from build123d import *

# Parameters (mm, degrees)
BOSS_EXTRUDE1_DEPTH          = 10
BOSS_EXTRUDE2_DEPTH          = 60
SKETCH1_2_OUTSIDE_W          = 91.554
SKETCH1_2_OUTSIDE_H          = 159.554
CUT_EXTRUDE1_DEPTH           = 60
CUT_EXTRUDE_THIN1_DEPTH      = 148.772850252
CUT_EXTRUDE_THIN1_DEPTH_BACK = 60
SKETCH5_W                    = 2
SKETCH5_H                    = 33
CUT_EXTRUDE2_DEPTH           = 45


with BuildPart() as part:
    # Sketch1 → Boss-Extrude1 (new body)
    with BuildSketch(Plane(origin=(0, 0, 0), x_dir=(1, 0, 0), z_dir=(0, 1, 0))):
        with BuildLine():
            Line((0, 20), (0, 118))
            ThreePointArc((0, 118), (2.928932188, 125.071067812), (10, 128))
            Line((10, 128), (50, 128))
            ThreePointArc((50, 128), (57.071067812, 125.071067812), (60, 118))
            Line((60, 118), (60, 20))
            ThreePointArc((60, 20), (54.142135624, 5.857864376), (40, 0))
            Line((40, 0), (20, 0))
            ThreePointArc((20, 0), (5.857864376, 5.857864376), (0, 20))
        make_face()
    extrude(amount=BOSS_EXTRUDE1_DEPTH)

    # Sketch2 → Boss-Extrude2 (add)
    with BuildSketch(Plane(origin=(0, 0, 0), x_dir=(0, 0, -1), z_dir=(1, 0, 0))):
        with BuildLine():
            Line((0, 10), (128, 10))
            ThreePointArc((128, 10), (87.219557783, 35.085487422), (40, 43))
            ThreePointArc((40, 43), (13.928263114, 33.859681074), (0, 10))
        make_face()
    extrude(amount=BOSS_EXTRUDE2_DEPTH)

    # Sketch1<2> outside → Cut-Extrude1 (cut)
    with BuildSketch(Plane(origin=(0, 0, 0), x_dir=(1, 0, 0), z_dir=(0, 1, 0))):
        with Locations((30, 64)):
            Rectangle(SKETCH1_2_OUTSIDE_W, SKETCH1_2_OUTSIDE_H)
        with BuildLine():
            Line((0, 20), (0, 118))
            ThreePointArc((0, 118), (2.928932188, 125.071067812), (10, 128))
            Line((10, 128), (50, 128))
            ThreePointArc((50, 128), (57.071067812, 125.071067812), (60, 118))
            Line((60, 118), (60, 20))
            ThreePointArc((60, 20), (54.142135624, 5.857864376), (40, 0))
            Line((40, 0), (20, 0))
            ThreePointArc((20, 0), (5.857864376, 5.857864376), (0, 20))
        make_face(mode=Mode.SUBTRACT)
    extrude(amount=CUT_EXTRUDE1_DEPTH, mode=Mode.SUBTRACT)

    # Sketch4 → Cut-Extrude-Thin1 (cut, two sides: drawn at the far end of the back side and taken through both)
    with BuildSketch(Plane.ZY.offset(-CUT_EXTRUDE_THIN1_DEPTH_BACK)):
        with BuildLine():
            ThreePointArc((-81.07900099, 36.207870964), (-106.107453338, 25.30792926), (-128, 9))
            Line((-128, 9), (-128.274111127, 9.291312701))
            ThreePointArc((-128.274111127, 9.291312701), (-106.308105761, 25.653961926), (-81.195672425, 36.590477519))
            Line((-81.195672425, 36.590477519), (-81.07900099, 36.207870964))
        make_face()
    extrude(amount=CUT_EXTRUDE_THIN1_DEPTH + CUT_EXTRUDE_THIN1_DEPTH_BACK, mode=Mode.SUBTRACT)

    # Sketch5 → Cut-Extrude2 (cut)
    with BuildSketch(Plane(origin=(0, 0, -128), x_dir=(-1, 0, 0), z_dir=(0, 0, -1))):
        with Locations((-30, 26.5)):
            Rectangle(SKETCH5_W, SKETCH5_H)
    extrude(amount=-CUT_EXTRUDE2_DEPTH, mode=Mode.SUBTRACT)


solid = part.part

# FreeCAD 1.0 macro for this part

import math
import FreeCAD as App
import Part
import Sketcher
from FreeCAD import Vector
Q = App.Units.Quantity

doc = App.newDocument("Part")
body = doc.addObject("PartDesign::Body", "Body")

sketch1 = body.newObject("Sketcher::SketchObject", "Sketch")
sketch1.AttachmentSupport = (doc.getObject("XZ_Plane"), [""])
sketch1.MapMode = "FlatFace"
sketch1.addGeometry(Part.LineSegment(Vector(0, -118, 0), Vector(0, -20, 0)), False)
sketch1.addGeometry(Part.ArcOfCircle(Part.Circle(Vector(20, -20, 0), Vector(0, 0, 1), 20), math.radians(90), math.radians(180)), False)
sketch1.addGeometry(Part.LineSegment(Vector(20, 0, 0), Vector(40, 0, 0)), False)
sketch1.addGeometry(Part.ArcOfCircle(Part.Circle(Vector(40, -20, 0), Vector(0, 0, 1), 20), math.radians(0), math.radians(90)), False)
sketch1.addGeometry(Part.LineSegment(Vector(60, -20, 0), Vector(60, -118, 0)), False)
sketch1.addGeometry(Part.ArcOfCircle(Part.Circle(Vector(50, -118, 0), Vector(0, 0, 1), 10), math.radians(-90), math.radians(0)), False)
sketch1.addGeometry(Part.LineSegment(Vector(50, -128, 0), Vector(10, -128, 0)), False)
sketch1.addGeometry(Part.ArcOfCircle(Part.Circle(Vector(10, -118, 0), Vector(0, 0, 1), 10), math.radians(180), math.radians(270)), False)
sketch1.addConstraint(Sketcher.Constraint("Tangent", 0, 2, 1, 2))
sketch1.addConstraint(Sketcher.Constraint("Tangent", 1, 1, 2, 1))
sketch1.addConstraint(Sketcher.Constraint("Tangent", 2, 2, 3, 2))
sketch1.addConstraint(Sketcher.Constraint("Tangent", 3, 1, 4, 1))
sketch1.addConstraint(Sketcher.Constraint("Tangent", 4, 2, 5, 2))
sketch1.addConstraint(Sketcher.Constraint("Tangent", 5, 1, 6, 1))
sketch1.addConstraint(Sketcher.Constraint("Tangent", 6, 2, 7, 2))
sketch1.addConstraint(Sketcher.Constraint("Tangent", 7, 1, 0, 1))
sketch1.addConstraint(Sketcher.Constraint("Vertical", 0))
sketch1.addConstraint(Sketcher.Constraint("Horizontal", 2))
sketch1.addConstraint(Sketcher.Constraint("Vertical", 4))
sketch1.addConstraint(Sketcher.Constraint("Horizontal", 6))
sketch1.addConstraint(Sketcher.Constraint("Equal", 1, 3))
sketch1.addConstraint(Sketcher.Constraint("Equal", 5, 7))
sketch1.addConstraint(Sketcher.Constraint("PointOnObject", 0, 2, -2))
sketch1.addConstraint(Sketcher.Constraint("PointOnObject", 1, 1, -1))
sketch1.addConstraint(Sketcher.Constraint("Radius", 1, Q("20 mm")))
sketch1.addConstraint(Sketcher.Constraint("Radius", 5, Q("10 mm")))
sketch1.addConstraint(Sketcher.Constraint("DistanceX", 2, 1, 2, 2, Q("20 mm")))
sketch1.addConstraint(Sketcher.Constraint("DistanceY", 0, 1, 0, 2, Q("98 mm")))
pad1 = body.newObject("PartDesign::Pad", "Pad")
pad1.Profile = sketch1
pad1.Length = 10
pad1.Reversed = True

sketch2 = body.newObject("Sketcher::SketchObject", "Sketch001")
sketch2.AttachmentSupport = (doc.getObject("YZ_Plane"), [""])
sketch2.MapMode = "FlatFace"
sketch2.addGeometry(Part.LineSegment(Vector(10, 0, 0), Vector(10, -128, 0)), False)
sketch2.addGeometry(Part.ArcOfCircle(Part.Circle(Vector(-82, -43, 0), Vector(0, 0, 1), 125), math.radians(-43), math.radians(2)), False)
sketch2.addGeometry(Part.ArcOfCircle(Part.Circle(Vector(3, -39, 0), Vector(0, 0, 1), 40), math.radians(-1), math.radians(80)), False)
sketch2.addConstraint(Sketcher.Constraint("Coincident", 0, 2, 1, 1))
sketch2.addConstraint(Sketcher.Constraint("Coincident", 1, 2, 2, 1))
sketch2.addConstraint(Sketcher.Constraint("Coincident", 2, 2, 0, 1))
sketch2.addConstraint(Sketcher.Constraint("Vertical", 0))
sketch2.addConstraint(Sketcher.Constraint("PointOnObject", 2, 2, -1))
sketch2.addConstraint(Sketcher.Constraint("Radius", 1, Q("125 mm")))
sketch2.addConstraint(Sketcher.Constraint("Radius", 2, Q("40 mm")))
sketch2.addConstraint(Sketcher.Constraint("DistanceY", 0, 2, 0, 1, Q("128 mm")))
sketch2.addConstraint(Sketcher.Constraint("DistanceX", -1, 1, 0, 2, Q("10 mm")))
sketch2.addConstraint(Sketcher.Constraint("DistanceX", -1, 1, 1, 2, Q("43 mm")))
sketch2.addConstraint(Sketcher.Constraint("DistanceY", 1, 2, -1, 1, Q("40 mm")))
pad2 = body.newObject("PartDesign::Pad", "Pad001")
pad2.Profile = sketch2
pad2.Length = 60

sketch3 = body.newObject("Sketcher::SketchObject", "Sketch002")
sketch3.AttachmentSupport = (doc.getObject("XZ_Plane"), [""])
sketch3.MapMode = "FlatFace"
sketch3.addGeometry(Part.LineSegment(Vector(-16, -144, 0), Vector(-16, 16, 0)), False)
sketch3.addGeometry(Part.LineSegment(Vector(-16, 16, 0), Vector(76, 16, 0)), False)
sketch3.addGeometry(Part.LineSegment(Vector(76, 16, 0), Vector(76, -144, 0)), False)
sketch3.addGeometry(Part.LineSegment(Vector(76, -144, 0), Vector(-16, -144, 0)), False)
sketch3.addGeometry(Part.ArcOfCircle(Part.Circle(Vector(20, -20, 0), Vector(0, 0, 1), 20), math.radians(90), math.radians(180)), False)
sketch3.addGeometry(Part.LineSegment(Vector(0, -20, 0), Vector(0, -118, 0)), False)
sketch3.addGeometry(Part.ArcOfCircle(Part.Circle(Vector(10, -118, 0), Vector(0, 0, 1), 10), math.radians(180), math.radians(270)), False)
sketch3.addGeometry(Part.LineSegment(Vector(10, -128, 0), Vector(50, -128, 0)), False)
sketch3.addGeometry(Part.ArcOfCircle(Part.Circle(Vector(50, -118, 0), Vector(0, 0, 1), 10), math.radians(-90), math.radians(0)), False)
sketch3.addGeometry(Part.LineSegment(Vector(60, -118, 0), Vector(60, -20, 0)), False)
sketch3.addGeometry(Part.ArcOfCircle(Part.Circle(Vector(40, -20, 0), Vector(0, 0, 1), 20), math.radians(0), math.radians(90)), False)
sketch3.addGeometry(Part.LineSegment(Vector(40, 0, 0), Vector(20, 0, 0)), False)
sketch3.addConstraint(Sketcher.Constraint("Coincident", 0, 2, 1, 1))
sketch3.addConstraint(Sketcher.Constraint("Coincident", 1, 2, 2, 1))
sketch3.addConstraint(Sketcher.Constraint("Coincident", 2, 2, 3, 1))
sketch3.addConstraint(Sketcher.Constraint("Coincident", 3, 2, 0, 1))
sketch3.addConstraint(Sketcher.Constraint("Tangent", 4, 2, 5, 1))
sketch3.addConstraint(Sketcher.Constraint("Tangent", 5, 2, 6, 1))
sketch3.addConstraint(Sketcher.Constraint("Tangent", 6, 2, 7, 1))
sketch3.addConstraint(Sketcher.Constraint("Tangent", 7, 2, 8, 1))
sketch3.addConstraint(Sketcher.Constraint("Tangent", 8, 2, 9, 1))
sketch3.addConstraint(Sketcher.Constraint("Tangent", 9, 2, 10, 1))
sketch3.addConstraint(Sketcher.Constraint("Tangent", 10, 2, 11, 1))
sketch3.addConstraint(Sketcher.Constraint("Tangent", 11, 2, 4, 1))
sketch3.addConstraint(Sketcher.Constraint("Vertical", 0))
sketch3.addConstraint(Sketcher.Constraint("Horizontal", 1))
sketch3.addConstraint(Sketcher.Constraint("Vertical", 2))
sketch3.addConstraint(Sketcher.Constraint("Horizontal", 3))
sketch3.addConstraint(Sketcher.Constraint("Vertical", 5))
sketch3.addConstraint(Sketcher.Constraint("Horizontal", 7))
sketch3.addConstraint(Sketcher.Constraint("Vertical", 9))
sketch3.addConstraint(Sketcher.Constraint("Horizontal", 11))
sketch3.addConstraint(Sketcher.Constraint("Equal", 6, 8))
sketch3.addConstraint(Sketcher.Constraint("Equal", 4, 10))
sketch3.addConstraint(Sketcher.Constraint("PointOnObject", 4, 2, -2))
sketch3.addConstraint(Sketcher.Constraint("PointOnObject", 10, 2, -1))
sketch3.addConstraint(Sketcher.Constraint("Radius", 4, Q("20 mm")))
sketch3.addConstraint(Sketcher.Constraint("Radius", 6, Q("10 mm")))
sketch3.addConstraint(Sketcher.Constraint("DistanceX", 7, 1, 7, 2, Q("40 mm")))
sketch3.addConstraint(Sketcher.Constraint("DistanceY", 5, 2, 5, 1, Q("98 mm")))
sketch3.addConstraint(Sketcher.Constraint("DistanceX", 1, 1, 1, 2, Q("91.554 mm")))
sketch3.addConstraint(Sketcher.Constraint("DistanceY", 0, 1, 0, 2, Q("159.554 mm")))
sketch3.addConstraint(Sketcher.Constraint("DistanceX", 0, 2, -1, 1, Q("15.777 mm")))
sketch3.addConstraint(Sketcher.Constraint("DistanceY", -1, 1, 0, 2, Q("15.777 mm")))
pocket1 = body.newObject("PartDesign::Pocket", "Pocket")
pocket1.Profile = sketch3
pocket1.Length = 60

sketch4 = body.newObject("Sketcher::SketchObject", "Sketch003")
sketch4.AttachmentSupport = (doc.getObject("YZ_Plane"), [""])
sketch4.MapMode = "FlatFace"
sketch4.addGeometry(Part.ArcOfCircle(Part.Circle(Vector(-77.82, -46.31, 0), Vector(0, 0, 1), 119.21), math.radians(-43), math.radians(-17)), False)
sketch4.addGeometry(Part.LineSegment(Vector(36.21, -81.08, 0), Vector(36.59, -81.2, 0)), False)
sketch4.addGeometry(Part.ArcOfCircle(Part.Circle(Vector(-77.82, -46.31, 0), Vector(0, 0, 1), 119.61), math.radians(-43), math.radians(-17)), False)
sketch4.addGeometry(Part.LineSegment(Vector(9.29, -128.27, 0), Vector(9, -128, 0)), False)
sketch4.addConstraint(Sketcher.Constraint("Coincident", 0, 2, 1, 1))
sketch4.addConstraint(Sketcher.Constraint("Coincident", 1, 2, 2, 2))
sketch4.addConstraint(Sketcher.Constraint("Coincident", 2, 1, 3, 1))
sketch4.addConstraint(Sketcher.Constraint("Coincident", 3, 2, 0, 1))
sketch4.addConstraint(Sketcher.Constraint("Coincident", 2, 3, 0, 3))
sketch4.addConstraint(Sketcher.Constraint("DistanceX", -1, 1, 3, 2, Q("9 mm")))
sketch4.addConstraint(Sketcher.Constraint("DistanceY", 3, 2, -1, 1, Q("128 mm")))
sketch4.addConstraint(Sketcher.Constraint("Distance", 1, Q("0.4 mm")))
sketch4.addConstraint(Sketcher.Constraint("Radius", 0, Q("119.210088 mm")))
sketch4.addConstraint(Sketcher.Constraint("DistanceY", 0, 2, -1, 1, Q("81.079001 mm")))
sketch4.addConstraint(Sketcher.Constraint("DistanceY", 1, 2, 2, 3, Q("34.887701 mm")))
sketch4.addConstraint(Sketcher.Constraint("DistanceY", 0, 3, -1, 1, Q("46.307971 mm")))
sketch4.addConstraint(Sketcher.Constraint("DistanceY", 2, 1, -1, 1, Q("128.274111 mm")))
pocket2 = body.newObject("PartDesign::Pocket", "Pocket001")
pocket2.Profile = sketch4
pocket2.Type = "ThroughAll"
pocket2.Midplane = True

sketch5 = body.newObject("Sketcher::SketchObject", "Sketch004")
sketch5.AttachmentSupport = (doc.getObject("XY_Plane"), [""])
sketch5.MapMode = "FlatFace"
sketch5.AttachmentOffset = App.Placement(Vector(0, 0, -128), App.Rotation())
sketch5.addGeometry(Part.LineSegment(Vector(31, 43, 0), Vector(31, 10, 0)), False)
sketch5.addGeometry(Part.LineSegment(Vector(31, 10, 0), Vector(29, 10, 0)), False)
sketch5.addGeometry(Part.LineSegment(Vector(29, 10, 0), Vector(29, 43, 0)), False)
sketch5.addGeometry(Part.LineSegment(Vector(29, 43, 0), Vector(31, 43, 0)), False)
sketch5.addConstraint(Sketcher.Constraint("Coincident", 0, 2, 1, 1))
sketch5.addConstraint(Sketcher.Constraint("Coincident", 1, 2, 2, 1))
sketch5.addConstraint(Sketcher.Constraint("Coincident", 2, 2, 3, 1))
sketch5.addConstraint(Sketcher.Constraint("Coincident", 3, 2, 0, 1))
sketch5.addConstraint(Sketcher.Constraint("Vertical", 0))
sketch5.addConstraint(Sketcher.Constraint("Horizontal", 1))
sketch5.addConstraint(Sketcher.Constraint("Vertical", 2))
sketch5.addConstraint(Sketcher.Constraint("Horizontal", 3))
sketch5.addConstraint(Sketcher.Constraint("DistanceX", 1, 2, 1, 1, Q("2 mm")))
sketch5.addConstraint(Sketcher.Constraint("DistanceY", 0, 2, 0, 1, Q("33 mm")))
sketch5.addConstraint(Sketcher.Constraint("DistanceX", -1, 1, 0, 2, Q("31 mm")))
sketch5.addConstraint(Sketcher.Constraint("DistanceY", -1, 1, 0, 2, Q("10 mm")))
pocket3 = body.newObject("PartDesign::Pocket", "Pocket002")
pocket3.Profile = sketch5
pocket3.Length = 45
pocket3.Reversed = True

doc.recompute()
